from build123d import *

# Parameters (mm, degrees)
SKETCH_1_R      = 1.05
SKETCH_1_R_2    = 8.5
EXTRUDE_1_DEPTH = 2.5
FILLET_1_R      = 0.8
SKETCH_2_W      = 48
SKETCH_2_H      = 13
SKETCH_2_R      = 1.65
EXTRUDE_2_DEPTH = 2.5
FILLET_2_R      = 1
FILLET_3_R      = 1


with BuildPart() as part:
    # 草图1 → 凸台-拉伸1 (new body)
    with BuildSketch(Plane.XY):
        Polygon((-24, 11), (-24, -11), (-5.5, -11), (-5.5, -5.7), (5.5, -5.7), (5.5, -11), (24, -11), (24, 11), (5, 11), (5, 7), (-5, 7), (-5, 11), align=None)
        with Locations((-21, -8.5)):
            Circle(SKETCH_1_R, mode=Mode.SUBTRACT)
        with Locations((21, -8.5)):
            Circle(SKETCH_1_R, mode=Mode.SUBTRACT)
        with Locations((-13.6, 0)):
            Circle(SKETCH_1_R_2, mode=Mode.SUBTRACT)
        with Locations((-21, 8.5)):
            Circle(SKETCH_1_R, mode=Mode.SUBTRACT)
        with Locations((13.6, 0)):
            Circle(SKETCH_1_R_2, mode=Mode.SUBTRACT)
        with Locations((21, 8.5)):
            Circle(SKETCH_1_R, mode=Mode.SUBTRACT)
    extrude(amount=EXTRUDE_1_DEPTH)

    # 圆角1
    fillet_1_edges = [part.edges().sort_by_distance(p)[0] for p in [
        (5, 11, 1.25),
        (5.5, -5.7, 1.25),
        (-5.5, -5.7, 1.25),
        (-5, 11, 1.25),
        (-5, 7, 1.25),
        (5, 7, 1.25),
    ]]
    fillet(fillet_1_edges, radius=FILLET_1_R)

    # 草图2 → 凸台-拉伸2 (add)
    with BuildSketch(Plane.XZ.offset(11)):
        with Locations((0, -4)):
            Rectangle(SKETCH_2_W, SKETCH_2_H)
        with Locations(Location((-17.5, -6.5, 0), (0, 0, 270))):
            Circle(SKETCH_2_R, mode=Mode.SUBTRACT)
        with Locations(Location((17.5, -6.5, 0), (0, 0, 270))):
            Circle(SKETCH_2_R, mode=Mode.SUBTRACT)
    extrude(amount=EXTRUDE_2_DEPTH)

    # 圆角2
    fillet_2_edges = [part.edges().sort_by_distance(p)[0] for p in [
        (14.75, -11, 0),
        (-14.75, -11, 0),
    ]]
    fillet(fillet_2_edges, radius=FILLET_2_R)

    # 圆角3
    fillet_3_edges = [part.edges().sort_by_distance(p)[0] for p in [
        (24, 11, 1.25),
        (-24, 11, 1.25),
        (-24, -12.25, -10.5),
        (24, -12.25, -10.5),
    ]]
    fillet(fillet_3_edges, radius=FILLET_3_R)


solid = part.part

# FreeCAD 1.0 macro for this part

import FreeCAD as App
import Part
import Sketcher
Q = App.Units.Quantity


def edges_at(feature, points):
    """Names of the edges that pass closest to the given points."""
    edges = feature.Shape.Edges
    near = lambda p: min(range(len(edges)), key=lambda i: edges[i].distToShape(Part.Vertex(*p))[0])
    return sorted({f"Edge{near(p) + 1}" for p in points})


def add_polygon(sketch, points):
    """Adds a closed chain of lines whose ends are joined by coincident constraints."""
    first, n = sketch.GeometryCount, len(points)
    for a, b in zip(points, points[1:] + points[:1]):
        sketch.addGeometry(Part.LineSegment(App.Vector(*a, 0), App.Vector(*b, 0)), False)
    for i in range(n):
        sketch.addConstraint(Sketcher.Constraint("Coincident", first + i, 2, first + (i + 1) % n, 1))

doc = App.newDocument("Part")
body = doc.addObject("PartDesign::Body", "Body")

# Sketch on XY plane
sketch1 = doc.addObject("Sketcher::SketchObject", "Sketch")
body.addObject(sketch1)
sketch1.AttachmentSupport = (doc.XY_Plane, [""])
sketch1.MapMode = "FlatFace"
add_polygon(sketch1, [(-24, 11), (-24, -11), (-5.5, -11), (-5.5, -5.7), (5.5, -5.7), (5.5, -11), (24, -11), (24, 11), (5, 11), (5, 7), (-5, 7), (-5, 11)])  # lines 0-11
sketch1.addGeometry(Part.Circle(App.Vector(-21, -8.5, 0), App.Vector(0, 0, 1), 1.1), False)  # 12
sketch1.addGeometry(Part.Circle(App.Vector(-13.6, 0, 0), App.Vector(0, 0, 1), 8.5), False)  # 13
sketch1.addGeometry(Part.Circle(App.Vector(21, -8.5, 0), App.Vector(0, 0, 1), 1.1), False)  # 14
sketch1.addGeometry(Part.Circle(App.Vector(13.6, 0, 0), App.Vector(0, 0, 1), 8.5), False)  # 15
sketch1.addGeometry(Part.Circle(App.Vector(-21, 8.5, 0), App.Vector(0, 0, 1), 1.1), False)  # 16
sketch1.addGeometry(Part.Circle(App.Vector(21, 8.5, 0), App.Vector(0, 0, 1), 1.1), False)  # 17
sketch1.addConstraint(Sketcher.Constraint("Vertical", 0))
sketch1.addConstraint(Sketcher.Constraint("Horizontal", 1))
sketch1.addConstraint(Sketcher.Constraint("Vertical", 2))
sketch1.addConstraint(Sketcher.Constraint("Horizontal", 3))
sketch1.addConstraint(Sketcher.Constraint("Vertical", 4))
sketch1.addConstraint(Sketcher.Constraint("Horizontal", 5))
sketch1.addConstraint(Sketcher.Constraint("Vertical", 6))
sketch1.addConstraint(Sketcher.Constraint("Horizontal", 7))
sketch1.addConstraint(Sketcher.Constraint("Vertical", 8))
sketch1.addConstraint(Sketcher.Constraint("Horizontal", 9))
sketch1.addConstraint(Sketcher.Constraint("Vertical", 10))
sketch1.addConstraint(Sketcher.Constraint("Horizontal", 11))
sketch1.addConstraint(Sketcher.Constraint("Equal", 12, 14))
sketch1.addConstraint(Sketcher.Constraint("Equal", 13, 15))
sketch1.addConstraint(Sketcher.Constraint("Equal", 14, 16))
sketch1.addConstraint(Sketcher.Constraint("Equal", 16, 17))
sketch1.addConstraint(Sketcher.Constraint("Symmetric", 13, 3, 15, 3, -1, 1))
sketch1.addConstraint(Sketcher.Constraint("Symmetric", 14, 3, 16, 3, -1, 1))
sketch1.addConstraint(Sketcher.Constraint("Symmetric", 12, 3, 17, 3, -1, 1))
sketch1.addConstraint(Sketcher.Constraint("Symmetric", 0, 2, 6, 2, -1, 1))
sketch1.addConstraint(Sketcher.Constraint("Symmetric", 12, 3, 14, 3, -2))
sketch1.addConstraint(Sketcher.Constraint("Symmetric", 1, 2, 4, 2, -2))
sketch1.addConstraint(Sketcher.Constraint("Symmetric", 7, 2, 10, 2, -2))
sketch1.addConstraint(Sketcher.Constraint("PointOnObject", 13, 3, -1))
sketch1.addConstraint(Sketcher.Constraint("Diameter", 13, Q("17 mm")))
sketch1.addConstraint(Sketcher.Constraint("Diameter", 12, Q("2.1 mm")))
sketch1.addConstraint(Sketcher.Constraint("DistanceX", 3, 1, 3, 2, Q("11 mm")))
sketch1.addConstraint(Sketcher.Constraint("DistanceX", 7, 2, 7, 1, Q("19 mm")))
sketch1.addConstraint(Sketcher.Constraint("DistanceX", 9, 2, 9, 1, Q("10 mm")))
sketch1.addConstraint(Sketcher.Constraint("DistanceY", 0, 2, 0, 1, Q("22 mm")))
sketch1.addConstraint(Sketcher.Constraint("DistanceY", 8, 2, 8, 1, Q("4 mm")))
sketch1.addConstraint(Sketcher.Constraint("DistanceY", 2, 1, 2, 2, Q("5.3 mm")))
sketch1.addConstraint(Sketcher.Constraint("DistanceX", 12, 3, -1, 1, Q("21 mm")))
sketch1.addConstraint(Sketcher.Constraint("DistanceY", 12, 3, 16, 3, Q("17 mm")))
sketch1.addConstraint(Sketcher.Constraint("DistanceX", 13, 3, -1, 1, Q("13.6 mm")))
pad1 = doc.addObject("PartDesign::Pad", "Pad")
body.addObject(pad1)
pad1.Profile = sketch1
pad1.Length = 2.5
doc.recompute()

fillet = doc.addObject("PartDesign::Fillet", "Fillet")
body.addObject(fillet)
fillet.Base = (pad1, edges_at(pad1, [
    (5, 11, 1.25),
    (5.5, -5.7, 1.25),
    (-5.5, -5.7, 1.25),
    (-5, 11, 1.25),
    (-5, 7, 1.25),
    (5, 7, 1.25),
]))
fillet.Radius = 0.8

# Sketch on XZ plane
sketch2 = doc.addObject("Sketcher::SketchObject", "Sketch001")
body.addObject(sketch2)
sketch2.AttachmentSupport = (doc.XZ_Plane, [""])
sketch2.MapMode = "FlatFace"
sketch2.AttachmentOffset = App.Placement(App.Vector(0, 0, 11), App.Rotation())
add_polygon(sketch2, [(-24, 2.5), (-24, -10.5), (24, -10.5), (24, 2.5)])  # lines 0-3
sketch2.addGeometry(Part.Circle(App.Vector(-17.5, -6.5, 0), App.Vector(0, 0, 1), 1.6), False)  # 4
sketch2.addGeometry(Part.Circle(App.Vector(17.5, -6.5, 0), App.Vector(0, 0, 1), 1.6), False)  # 5
sketch2.addConstraint(Sketcher.Constraint("Vertical", 0))
sketch2.addConstraint(Sketcher.Constraint("Horizontal", 1))
sketch2.addConstraint(Sketcher.Constraint("Vertical", 2))
sketch2.addConstraint(Sketcher.Constraint("Horizontal", 3))
sketch2.addConstraint(Sketcher.Constraint("Equal", 4, 5))
sketch2.addConstraint(Sketcher.Constraint("Symmetric", 4, 3, 5, 3, -2))
sketch2.addConstraint(Sketcher.Constraint("Diameter", 4, Q("3.3 mm")))
sketch2.addConstraint(Sketcher.Constraint("DistanceX", 1, 1, 1, 2, Q("48 mm")))
sketch2.addConstraint(Sketcher.Constraint("DistanceY", 0, 2, 0, 1, Q("13 mm")))
sketch2.addConstraint(Sketcher.Constraint("DistanceX", 0, 2, -1, 1, Q("24 mm")))
sketch2.addConstraint(Sketcher.Constraint("DistanceX", 4, 3, 5, 3, Q("35 mm")))
sketch2.addConstraint(Sketcher.Constraint("DistanceY", 0, 2, 4, 3, Q("4 mm")))
sketch2.addConstraint(Sketcher.Constraint("DistanceY", 4, 3, -1, 1, Q("6.5 mm")))
pad2 = doc.addObject("PartDesign::Pad", "Pad001")
body.addObject(pad2)
pad2.Profile = sketch2
pad2.Length = 2.5
doc.recompute()

fillet2 = doc.addObject("PartDesign::Fillet", "Fillet001")
body.addObject(fillet2)
fillet2.Base = (pad2, edges_at(pad2, [(14.75, -11, 0), (-14.75, -11, 0)]))
fillet2.Radius = 1
doc.recompute()

fillet3 = doc.addObject("PartDesign::Fillet", "Fillet002")
body.addObject(fillet3)
fillet3.Base = (fillet2, edges_at(fillet2, [
    (24, 11, 1.25),
    (-24, 11, 1.25),
    (-24, -12.25, -10.5),
    (24, -12.25, -10.5),
]))
fillet3.Radius = 1

doc.recompute()
